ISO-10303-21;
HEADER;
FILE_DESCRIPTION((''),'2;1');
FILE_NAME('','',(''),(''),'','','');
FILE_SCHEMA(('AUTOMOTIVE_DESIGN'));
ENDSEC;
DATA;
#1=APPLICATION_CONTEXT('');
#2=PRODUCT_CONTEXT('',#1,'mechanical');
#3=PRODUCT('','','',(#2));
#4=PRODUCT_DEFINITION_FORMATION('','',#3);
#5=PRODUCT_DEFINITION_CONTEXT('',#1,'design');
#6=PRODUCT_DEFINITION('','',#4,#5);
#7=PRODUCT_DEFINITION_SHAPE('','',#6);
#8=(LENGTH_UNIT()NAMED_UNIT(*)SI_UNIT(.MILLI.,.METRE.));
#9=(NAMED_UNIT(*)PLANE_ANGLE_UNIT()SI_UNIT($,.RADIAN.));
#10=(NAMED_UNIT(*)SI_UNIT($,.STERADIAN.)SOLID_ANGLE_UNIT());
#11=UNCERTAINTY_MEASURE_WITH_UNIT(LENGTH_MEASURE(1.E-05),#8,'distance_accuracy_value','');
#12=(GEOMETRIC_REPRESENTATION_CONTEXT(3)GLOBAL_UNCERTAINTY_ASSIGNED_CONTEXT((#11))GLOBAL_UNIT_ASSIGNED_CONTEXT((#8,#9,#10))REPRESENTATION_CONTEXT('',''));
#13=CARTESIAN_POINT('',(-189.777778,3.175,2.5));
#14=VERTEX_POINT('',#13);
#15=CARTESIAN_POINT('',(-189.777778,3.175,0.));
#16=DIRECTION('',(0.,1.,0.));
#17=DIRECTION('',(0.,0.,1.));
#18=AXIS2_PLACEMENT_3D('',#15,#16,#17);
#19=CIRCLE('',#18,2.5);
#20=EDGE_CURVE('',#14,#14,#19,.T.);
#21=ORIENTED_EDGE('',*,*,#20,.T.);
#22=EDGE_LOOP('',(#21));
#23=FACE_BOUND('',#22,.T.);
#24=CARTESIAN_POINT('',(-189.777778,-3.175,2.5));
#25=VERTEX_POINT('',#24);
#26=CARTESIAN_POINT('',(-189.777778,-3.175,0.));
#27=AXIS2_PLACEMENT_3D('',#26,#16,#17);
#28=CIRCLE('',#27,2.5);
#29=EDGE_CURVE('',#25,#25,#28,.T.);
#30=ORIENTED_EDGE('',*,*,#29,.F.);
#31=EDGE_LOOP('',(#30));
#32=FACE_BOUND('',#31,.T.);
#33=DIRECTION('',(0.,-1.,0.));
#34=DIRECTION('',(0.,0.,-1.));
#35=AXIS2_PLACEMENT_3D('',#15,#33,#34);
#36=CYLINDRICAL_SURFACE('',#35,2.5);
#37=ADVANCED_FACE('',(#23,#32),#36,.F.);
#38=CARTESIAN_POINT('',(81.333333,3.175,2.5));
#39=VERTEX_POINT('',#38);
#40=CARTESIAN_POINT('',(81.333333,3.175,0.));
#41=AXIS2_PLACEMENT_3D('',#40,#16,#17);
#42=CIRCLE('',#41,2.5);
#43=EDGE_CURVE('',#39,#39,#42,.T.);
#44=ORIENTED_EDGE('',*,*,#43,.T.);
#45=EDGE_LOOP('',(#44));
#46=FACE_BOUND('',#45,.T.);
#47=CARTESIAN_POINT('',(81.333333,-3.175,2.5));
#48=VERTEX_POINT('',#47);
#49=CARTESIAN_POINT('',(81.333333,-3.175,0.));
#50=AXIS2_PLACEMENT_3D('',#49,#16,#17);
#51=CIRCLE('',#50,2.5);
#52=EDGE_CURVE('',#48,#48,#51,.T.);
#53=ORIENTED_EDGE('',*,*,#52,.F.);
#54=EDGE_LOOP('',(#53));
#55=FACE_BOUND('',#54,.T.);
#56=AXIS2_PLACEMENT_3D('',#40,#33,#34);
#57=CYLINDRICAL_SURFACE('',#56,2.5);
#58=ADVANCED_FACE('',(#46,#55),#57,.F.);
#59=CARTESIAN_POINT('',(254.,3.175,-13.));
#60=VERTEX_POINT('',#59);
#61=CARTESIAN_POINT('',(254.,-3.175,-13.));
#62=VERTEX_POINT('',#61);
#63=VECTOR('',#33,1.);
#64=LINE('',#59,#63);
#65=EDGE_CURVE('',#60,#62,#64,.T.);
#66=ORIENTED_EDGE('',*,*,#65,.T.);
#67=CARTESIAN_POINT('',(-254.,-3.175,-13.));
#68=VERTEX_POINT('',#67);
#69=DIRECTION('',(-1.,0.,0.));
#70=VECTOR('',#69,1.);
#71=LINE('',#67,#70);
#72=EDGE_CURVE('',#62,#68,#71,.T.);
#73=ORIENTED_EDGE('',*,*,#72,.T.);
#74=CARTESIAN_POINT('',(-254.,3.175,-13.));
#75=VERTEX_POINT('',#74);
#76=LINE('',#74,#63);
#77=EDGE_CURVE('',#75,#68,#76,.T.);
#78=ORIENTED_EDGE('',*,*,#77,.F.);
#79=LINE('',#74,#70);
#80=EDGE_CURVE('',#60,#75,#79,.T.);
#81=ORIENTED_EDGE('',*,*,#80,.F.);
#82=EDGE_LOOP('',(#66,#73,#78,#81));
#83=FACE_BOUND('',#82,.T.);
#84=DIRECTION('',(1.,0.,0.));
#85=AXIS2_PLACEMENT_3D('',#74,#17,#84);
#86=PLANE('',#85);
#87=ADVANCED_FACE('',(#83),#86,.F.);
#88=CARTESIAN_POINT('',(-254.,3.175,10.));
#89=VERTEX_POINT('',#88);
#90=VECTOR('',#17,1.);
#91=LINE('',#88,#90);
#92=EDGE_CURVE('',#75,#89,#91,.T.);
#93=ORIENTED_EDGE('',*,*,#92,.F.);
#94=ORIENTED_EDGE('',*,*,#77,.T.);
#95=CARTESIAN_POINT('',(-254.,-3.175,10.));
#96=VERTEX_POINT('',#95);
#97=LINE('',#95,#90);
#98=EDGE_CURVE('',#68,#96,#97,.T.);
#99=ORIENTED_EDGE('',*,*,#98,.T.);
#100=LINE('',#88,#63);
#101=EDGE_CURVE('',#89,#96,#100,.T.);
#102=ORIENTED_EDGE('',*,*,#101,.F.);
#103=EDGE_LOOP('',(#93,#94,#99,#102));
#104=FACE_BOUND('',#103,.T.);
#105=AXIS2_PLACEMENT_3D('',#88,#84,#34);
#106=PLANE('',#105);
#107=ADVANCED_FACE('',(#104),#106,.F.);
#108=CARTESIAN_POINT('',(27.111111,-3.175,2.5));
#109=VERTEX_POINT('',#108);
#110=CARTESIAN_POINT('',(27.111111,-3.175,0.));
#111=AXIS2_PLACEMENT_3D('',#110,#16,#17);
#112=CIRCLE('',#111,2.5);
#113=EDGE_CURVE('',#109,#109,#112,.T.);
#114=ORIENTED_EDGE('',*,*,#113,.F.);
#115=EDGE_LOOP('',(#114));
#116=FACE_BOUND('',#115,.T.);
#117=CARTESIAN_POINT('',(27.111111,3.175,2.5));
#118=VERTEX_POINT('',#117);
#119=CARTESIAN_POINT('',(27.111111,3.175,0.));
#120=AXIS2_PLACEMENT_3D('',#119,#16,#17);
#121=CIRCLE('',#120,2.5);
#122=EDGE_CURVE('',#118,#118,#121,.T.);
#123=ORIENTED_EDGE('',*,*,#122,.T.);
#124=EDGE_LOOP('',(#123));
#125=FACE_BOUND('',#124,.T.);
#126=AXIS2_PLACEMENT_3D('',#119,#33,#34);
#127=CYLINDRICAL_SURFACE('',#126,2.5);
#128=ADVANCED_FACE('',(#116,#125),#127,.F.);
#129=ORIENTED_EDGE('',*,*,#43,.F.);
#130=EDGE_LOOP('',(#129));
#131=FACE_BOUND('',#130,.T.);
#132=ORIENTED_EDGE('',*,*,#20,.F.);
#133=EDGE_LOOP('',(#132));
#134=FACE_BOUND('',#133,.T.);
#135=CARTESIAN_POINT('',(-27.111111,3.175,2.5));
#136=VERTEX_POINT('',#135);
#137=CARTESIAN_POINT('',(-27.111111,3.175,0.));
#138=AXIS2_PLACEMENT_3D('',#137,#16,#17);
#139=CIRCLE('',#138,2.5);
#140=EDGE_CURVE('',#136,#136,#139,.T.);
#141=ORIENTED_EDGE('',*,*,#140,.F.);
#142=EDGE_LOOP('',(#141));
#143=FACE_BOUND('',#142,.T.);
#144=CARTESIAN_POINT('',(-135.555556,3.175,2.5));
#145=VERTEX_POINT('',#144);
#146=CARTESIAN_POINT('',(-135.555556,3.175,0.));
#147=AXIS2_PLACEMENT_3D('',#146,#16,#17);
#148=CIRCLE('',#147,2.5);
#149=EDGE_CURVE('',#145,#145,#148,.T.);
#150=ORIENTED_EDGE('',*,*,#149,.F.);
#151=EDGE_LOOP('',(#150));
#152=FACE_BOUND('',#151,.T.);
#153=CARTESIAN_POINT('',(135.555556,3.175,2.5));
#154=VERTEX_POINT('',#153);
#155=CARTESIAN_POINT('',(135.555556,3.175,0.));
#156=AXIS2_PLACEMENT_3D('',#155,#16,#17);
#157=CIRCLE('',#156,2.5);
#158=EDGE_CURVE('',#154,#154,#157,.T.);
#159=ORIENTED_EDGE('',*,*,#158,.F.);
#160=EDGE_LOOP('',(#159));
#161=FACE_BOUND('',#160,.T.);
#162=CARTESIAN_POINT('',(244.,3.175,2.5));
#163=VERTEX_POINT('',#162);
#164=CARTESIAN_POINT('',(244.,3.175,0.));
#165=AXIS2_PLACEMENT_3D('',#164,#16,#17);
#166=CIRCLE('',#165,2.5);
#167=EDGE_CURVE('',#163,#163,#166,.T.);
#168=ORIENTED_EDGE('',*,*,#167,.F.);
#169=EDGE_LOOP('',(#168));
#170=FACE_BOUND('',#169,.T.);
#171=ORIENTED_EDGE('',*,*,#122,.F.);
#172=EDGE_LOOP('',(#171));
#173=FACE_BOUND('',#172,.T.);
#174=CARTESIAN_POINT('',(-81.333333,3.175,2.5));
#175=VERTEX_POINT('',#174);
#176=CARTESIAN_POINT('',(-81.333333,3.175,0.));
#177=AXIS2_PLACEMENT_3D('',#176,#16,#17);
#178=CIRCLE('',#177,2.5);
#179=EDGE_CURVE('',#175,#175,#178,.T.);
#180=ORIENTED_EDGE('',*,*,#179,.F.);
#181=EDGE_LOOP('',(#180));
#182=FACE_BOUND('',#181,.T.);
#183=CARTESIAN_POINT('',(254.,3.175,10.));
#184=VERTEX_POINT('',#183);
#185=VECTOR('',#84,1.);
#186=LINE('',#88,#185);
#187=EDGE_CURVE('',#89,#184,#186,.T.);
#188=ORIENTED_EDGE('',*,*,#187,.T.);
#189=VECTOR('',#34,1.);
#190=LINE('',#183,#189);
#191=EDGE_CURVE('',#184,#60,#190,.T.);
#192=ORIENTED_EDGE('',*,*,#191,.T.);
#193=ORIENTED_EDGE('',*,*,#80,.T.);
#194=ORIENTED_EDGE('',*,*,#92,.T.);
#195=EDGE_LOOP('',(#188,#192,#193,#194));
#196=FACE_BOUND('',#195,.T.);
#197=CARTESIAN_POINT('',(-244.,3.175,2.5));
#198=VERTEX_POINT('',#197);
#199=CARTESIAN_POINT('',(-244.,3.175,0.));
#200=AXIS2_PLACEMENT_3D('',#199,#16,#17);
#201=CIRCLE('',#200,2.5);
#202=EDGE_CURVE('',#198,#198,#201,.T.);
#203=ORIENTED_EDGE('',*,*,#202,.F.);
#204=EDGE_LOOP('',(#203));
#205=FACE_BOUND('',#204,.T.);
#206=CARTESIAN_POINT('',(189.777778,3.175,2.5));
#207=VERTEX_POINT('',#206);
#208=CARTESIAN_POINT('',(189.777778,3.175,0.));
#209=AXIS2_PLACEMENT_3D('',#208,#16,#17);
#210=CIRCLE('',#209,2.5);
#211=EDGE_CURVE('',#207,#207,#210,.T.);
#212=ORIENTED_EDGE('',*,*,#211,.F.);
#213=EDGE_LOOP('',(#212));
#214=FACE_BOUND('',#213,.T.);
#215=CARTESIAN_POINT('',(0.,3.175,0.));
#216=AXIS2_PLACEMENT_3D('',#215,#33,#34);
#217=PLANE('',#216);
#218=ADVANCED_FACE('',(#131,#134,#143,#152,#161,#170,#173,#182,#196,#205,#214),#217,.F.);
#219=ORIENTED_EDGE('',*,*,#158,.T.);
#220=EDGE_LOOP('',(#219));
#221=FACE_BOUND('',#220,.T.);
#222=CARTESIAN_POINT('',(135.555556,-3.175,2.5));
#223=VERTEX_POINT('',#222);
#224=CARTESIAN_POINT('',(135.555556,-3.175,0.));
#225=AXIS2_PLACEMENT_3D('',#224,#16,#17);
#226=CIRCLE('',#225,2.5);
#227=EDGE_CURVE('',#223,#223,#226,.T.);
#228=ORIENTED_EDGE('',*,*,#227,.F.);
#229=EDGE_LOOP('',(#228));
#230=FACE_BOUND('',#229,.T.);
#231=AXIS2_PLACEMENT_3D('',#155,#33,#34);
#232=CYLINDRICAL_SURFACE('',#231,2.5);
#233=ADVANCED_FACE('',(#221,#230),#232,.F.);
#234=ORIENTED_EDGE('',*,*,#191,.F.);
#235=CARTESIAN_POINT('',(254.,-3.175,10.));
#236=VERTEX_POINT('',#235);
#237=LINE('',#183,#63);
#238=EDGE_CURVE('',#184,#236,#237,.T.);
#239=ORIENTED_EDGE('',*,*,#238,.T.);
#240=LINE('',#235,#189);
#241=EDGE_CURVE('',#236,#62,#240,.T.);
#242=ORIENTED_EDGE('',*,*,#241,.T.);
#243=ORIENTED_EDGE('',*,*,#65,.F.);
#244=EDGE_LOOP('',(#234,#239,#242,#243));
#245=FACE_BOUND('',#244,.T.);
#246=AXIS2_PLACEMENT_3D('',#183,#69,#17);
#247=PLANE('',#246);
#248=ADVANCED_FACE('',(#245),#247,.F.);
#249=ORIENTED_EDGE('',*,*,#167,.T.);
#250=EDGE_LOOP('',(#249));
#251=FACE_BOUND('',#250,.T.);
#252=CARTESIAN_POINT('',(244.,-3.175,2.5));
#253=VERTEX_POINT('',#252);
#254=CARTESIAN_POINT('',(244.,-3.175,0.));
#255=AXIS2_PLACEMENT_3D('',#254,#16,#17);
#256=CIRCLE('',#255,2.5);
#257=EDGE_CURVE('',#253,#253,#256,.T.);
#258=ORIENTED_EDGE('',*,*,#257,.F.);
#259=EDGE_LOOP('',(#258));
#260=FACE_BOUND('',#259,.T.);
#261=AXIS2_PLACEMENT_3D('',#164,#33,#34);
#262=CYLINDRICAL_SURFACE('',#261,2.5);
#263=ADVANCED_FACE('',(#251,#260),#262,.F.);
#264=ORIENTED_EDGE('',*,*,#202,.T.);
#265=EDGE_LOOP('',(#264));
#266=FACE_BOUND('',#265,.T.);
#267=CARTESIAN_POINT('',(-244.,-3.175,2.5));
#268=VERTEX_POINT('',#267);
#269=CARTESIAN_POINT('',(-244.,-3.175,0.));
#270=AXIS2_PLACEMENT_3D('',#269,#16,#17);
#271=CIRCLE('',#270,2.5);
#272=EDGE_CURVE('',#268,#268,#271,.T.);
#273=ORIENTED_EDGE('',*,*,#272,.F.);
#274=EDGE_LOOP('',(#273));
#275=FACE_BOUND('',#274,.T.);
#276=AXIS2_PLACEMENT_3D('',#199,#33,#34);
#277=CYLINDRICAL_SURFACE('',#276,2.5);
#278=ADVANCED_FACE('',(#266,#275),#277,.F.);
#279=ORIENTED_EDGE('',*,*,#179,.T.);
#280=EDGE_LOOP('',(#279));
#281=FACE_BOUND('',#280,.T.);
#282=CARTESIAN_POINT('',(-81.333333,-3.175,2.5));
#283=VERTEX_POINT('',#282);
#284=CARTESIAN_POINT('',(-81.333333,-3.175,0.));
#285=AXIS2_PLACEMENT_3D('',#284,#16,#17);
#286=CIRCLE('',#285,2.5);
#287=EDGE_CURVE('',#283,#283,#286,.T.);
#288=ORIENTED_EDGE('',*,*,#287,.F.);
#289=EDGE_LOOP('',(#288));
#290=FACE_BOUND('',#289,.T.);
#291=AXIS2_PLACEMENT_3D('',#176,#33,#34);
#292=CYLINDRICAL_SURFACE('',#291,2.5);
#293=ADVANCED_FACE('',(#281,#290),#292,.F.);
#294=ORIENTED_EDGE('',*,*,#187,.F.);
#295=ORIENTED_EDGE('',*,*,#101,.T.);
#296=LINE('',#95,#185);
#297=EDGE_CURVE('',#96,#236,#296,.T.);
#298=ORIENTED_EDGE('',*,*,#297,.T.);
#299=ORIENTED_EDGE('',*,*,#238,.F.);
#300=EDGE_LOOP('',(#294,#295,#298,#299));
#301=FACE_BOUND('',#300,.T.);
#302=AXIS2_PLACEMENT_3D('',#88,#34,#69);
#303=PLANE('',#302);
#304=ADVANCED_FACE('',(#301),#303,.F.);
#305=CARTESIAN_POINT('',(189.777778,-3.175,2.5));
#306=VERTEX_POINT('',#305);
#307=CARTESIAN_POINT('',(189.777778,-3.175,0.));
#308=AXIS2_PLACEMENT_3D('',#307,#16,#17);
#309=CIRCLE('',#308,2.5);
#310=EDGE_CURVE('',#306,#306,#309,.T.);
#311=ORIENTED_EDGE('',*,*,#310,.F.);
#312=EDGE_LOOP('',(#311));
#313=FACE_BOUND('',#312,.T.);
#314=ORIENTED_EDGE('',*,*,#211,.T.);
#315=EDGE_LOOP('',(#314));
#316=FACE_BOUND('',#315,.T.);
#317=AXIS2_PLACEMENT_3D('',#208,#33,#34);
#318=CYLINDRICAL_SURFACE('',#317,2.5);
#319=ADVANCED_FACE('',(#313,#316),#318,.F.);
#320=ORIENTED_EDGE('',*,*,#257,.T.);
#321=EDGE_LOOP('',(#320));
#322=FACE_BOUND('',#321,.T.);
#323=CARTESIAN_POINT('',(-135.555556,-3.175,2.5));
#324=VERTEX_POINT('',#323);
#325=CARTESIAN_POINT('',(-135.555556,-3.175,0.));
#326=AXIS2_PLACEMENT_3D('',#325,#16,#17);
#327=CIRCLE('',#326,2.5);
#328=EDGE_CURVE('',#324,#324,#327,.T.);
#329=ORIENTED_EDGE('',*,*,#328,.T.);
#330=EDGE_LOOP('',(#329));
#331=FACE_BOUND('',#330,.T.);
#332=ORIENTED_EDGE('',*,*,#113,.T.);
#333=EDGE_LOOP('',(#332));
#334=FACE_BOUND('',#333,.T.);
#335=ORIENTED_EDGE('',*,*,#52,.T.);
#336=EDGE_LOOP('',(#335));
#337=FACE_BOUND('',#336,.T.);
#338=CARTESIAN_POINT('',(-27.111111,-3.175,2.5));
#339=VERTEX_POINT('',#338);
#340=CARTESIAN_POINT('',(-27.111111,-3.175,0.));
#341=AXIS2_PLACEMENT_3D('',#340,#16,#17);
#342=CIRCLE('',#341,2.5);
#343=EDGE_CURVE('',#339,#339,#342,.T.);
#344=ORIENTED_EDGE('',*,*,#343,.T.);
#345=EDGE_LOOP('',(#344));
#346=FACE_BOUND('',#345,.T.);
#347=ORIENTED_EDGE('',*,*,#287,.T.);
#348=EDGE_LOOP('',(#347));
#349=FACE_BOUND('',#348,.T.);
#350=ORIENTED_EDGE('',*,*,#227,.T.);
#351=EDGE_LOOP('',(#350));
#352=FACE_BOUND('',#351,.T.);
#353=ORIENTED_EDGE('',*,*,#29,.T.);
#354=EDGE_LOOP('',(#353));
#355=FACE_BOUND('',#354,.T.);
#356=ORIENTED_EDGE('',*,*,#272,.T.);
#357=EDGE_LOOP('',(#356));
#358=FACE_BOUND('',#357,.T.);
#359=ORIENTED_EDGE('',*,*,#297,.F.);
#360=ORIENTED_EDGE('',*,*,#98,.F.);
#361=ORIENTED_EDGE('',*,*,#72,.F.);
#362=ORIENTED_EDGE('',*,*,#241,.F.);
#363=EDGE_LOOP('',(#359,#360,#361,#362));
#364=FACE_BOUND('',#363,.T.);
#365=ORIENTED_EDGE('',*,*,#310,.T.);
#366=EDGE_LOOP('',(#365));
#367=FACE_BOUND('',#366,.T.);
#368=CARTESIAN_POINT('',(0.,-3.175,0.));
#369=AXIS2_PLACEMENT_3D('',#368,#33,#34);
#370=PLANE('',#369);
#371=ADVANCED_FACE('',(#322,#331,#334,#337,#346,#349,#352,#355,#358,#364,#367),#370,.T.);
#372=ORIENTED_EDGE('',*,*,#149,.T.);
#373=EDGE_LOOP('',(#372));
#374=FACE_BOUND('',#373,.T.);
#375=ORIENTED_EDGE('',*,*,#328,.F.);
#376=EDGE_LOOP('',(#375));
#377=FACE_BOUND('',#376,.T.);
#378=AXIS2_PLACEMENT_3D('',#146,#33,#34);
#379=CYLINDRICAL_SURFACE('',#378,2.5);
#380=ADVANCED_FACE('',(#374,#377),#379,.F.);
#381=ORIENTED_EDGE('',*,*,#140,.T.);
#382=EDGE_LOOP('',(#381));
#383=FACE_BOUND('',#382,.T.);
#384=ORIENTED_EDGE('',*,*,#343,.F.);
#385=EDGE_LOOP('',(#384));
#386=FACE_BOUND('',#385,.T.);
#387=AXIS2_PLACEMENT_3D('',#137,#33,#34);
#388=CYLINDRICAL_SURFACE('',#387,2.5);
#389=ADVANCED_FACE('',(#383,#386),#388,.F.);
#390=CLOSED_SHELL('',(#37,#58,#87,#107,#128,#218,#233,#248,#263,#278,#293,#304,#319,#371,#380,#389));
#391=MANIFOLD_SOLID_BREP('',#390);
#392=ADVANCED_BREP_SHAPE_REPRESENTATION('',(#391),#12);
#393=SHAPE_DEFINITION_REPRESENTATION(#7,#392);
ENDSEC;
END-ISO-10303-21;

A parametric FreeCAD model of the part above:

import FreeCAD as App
import Part
import Sketcher

V = App.Vector
Q = App.Units.Quantity

doc = App.newDocument("Part")
body = doc.addObject("PartDesign::Body", "Body")

# Sketch on XZ plane
sketch1 = body.newObject("Sketcher::SketchObject", "Sketch")
sketch1.AttachmentSupport = (doc.getObject("XZ_Plane"), [""])
sketch1.MapMode = "FlatFace"
sketch1.addGeometry([
    Part.LineSegment(V(-254, -13, 0), V(-254, 10, 0)),  # 0
    Part.LineSegment(V(-254, 10, 0), V(254, 10, 0)),  # 1
    Part.LineSegment(V(254, 10, 0), V(254, -13, 0)),  # 2
    Part.LineSegment(V(254, -13, 0), V(-254, -13, 0)),  # 3
    Part.Circle(V(-244, 0, 0), V(0, 0, 1), 2.5),  # 4
    Part.Circle(V(-189.8, 0, 0), V(0, 0, 1), 2.5),  # 5
    Part.Circle(V(-135.6, 0, 0), V(0, 0, 1), 2.5),  # 6
    Part.Circle(V(-81.3, 0, 0), V(0, 0, 1), 2.5),  # 7
    Part.Circle(V(-27.1, 0, 0), V(0, 0, 1), 2.5),  # 8
    Part.Circle(V(27.1, 0, 0), V(0, 0, 1), 2.5),  # 9
    Part.Circle(V(81.3, 0, 0), V(0, 0, 1), 2.5),  # 10
    Part.Circle(V(135.6, 0, 0), V(0, 0, 1), 2.5),  # 11
    Part.Circle(V(189.8, 0, 0), V(0, 0, 1), 2.5),  # 12
    Part.Circle(V(244, 0, 0), V(0, 0, 1), 2.5),  # 13
], False)
sketch1.addConstraint([
    Sketcher.Constraint("Coincident", 0, 2, 1, 1),
    Sketcher.Constraint("Coincident", 1, 2, 2, 1),
    Sketcher.Constraint("Coincident", 2, 2, 3, 1),
    Sketcher.Constraint("Coincident", 3, 2, 0, 1),
    Sketcher.Constraint("Vertical", 0),
    Sketcher.Constraint("Horizontal", 1),
    Sketcher.Constraint("Vertical", 2),
    Sketcher.Constraint("Horizontal", 3),
    Sketcher.Constraint("Equal", 4, 5),
    Sketcher.Constraint("Equal", 5, 6),
    Sketcher.Constraint("Equal", 6, 7),
    Sketcher.Constraint("Equal", 7, 8),
    Sketcher.Constraint("Equal", 8, 9),
    Sketcher.Constraint("Equal", 9, 10),
    Sketcher.Constraint("Equal", 10, 11),
    Sketcher.Constraint("Equal", 11, 12),
    Sketcher.Constraint("Equal", 12, 13),
    Sketcher.Constraint("Symmetric", 8, 3, 9, 3, -1, 1),
    Sketcher.Constraint("Symmetric", 7, 3, 10, 3, -1, 1),
    Sketcher.Constraint("Symmetric", 6, 3, 11, 3, -1, 1),
    Sketcher.Constraint("Symmetric", 5, 3, 12, 3, -1, 1),
    Sketcher.Constraint("Symmetric", 4, 3, 13, 3, -1, 1),
    Sketcher.Constraint("PointOnObject", 4, 3, -1),
    Sketcher.Constraint("PointOnObject", 5, 3, -1),
    Sketcher.Constraint("PointOnObject", 6, 3, -1),
    Sketcher.Constraint("PointOnObject", 7, 3, -1),
    Sketcher.Constraint("PointOnObject", 8, 3, -1),
    Sketcher.Constraint("Diameter", 4, Q("5 mm")),
    Sketcher.Constraint("DistanceX", 1, 1, 1, 2, Q("508 mm")),
    Sketcher.Constraint("DistanceY", 0, 1, 0, 2, Q("23 mm")),
    Sketcher.Constraint("DistanceX", 4, 3, -1, 1, Q("244 mm")),
    Sketcher.Constraint("DistanceX", 0, 2, -1, 1, Q("254 mm")),
    Sketcher.Constraint("DistanceY", -1, 1, 0, 2, Q("10 mm")),
    Sketcher.Constraint("DistanceX", 8, 3, -1, 1, Q("27.111111 mm")),
    Sketcher.Constraint("DistanceX", 5, 3, 9, 3, Q("216.888889 mm")),
    Sketcher.Constraint("DistanceX", 6, 3, 10, 3, Q("216.888889 mm")),
    Sketcher.Constraint("DistanceX", 5, 3, 10, 3, Q("271.111111 mm")),
])
pad1 = body.newObject("PartDesign::Pad", "Pad")
pad1.Profile = sketch1
pad1.Length = 6.35
pad1.Midplane = True

doc.recompute()
